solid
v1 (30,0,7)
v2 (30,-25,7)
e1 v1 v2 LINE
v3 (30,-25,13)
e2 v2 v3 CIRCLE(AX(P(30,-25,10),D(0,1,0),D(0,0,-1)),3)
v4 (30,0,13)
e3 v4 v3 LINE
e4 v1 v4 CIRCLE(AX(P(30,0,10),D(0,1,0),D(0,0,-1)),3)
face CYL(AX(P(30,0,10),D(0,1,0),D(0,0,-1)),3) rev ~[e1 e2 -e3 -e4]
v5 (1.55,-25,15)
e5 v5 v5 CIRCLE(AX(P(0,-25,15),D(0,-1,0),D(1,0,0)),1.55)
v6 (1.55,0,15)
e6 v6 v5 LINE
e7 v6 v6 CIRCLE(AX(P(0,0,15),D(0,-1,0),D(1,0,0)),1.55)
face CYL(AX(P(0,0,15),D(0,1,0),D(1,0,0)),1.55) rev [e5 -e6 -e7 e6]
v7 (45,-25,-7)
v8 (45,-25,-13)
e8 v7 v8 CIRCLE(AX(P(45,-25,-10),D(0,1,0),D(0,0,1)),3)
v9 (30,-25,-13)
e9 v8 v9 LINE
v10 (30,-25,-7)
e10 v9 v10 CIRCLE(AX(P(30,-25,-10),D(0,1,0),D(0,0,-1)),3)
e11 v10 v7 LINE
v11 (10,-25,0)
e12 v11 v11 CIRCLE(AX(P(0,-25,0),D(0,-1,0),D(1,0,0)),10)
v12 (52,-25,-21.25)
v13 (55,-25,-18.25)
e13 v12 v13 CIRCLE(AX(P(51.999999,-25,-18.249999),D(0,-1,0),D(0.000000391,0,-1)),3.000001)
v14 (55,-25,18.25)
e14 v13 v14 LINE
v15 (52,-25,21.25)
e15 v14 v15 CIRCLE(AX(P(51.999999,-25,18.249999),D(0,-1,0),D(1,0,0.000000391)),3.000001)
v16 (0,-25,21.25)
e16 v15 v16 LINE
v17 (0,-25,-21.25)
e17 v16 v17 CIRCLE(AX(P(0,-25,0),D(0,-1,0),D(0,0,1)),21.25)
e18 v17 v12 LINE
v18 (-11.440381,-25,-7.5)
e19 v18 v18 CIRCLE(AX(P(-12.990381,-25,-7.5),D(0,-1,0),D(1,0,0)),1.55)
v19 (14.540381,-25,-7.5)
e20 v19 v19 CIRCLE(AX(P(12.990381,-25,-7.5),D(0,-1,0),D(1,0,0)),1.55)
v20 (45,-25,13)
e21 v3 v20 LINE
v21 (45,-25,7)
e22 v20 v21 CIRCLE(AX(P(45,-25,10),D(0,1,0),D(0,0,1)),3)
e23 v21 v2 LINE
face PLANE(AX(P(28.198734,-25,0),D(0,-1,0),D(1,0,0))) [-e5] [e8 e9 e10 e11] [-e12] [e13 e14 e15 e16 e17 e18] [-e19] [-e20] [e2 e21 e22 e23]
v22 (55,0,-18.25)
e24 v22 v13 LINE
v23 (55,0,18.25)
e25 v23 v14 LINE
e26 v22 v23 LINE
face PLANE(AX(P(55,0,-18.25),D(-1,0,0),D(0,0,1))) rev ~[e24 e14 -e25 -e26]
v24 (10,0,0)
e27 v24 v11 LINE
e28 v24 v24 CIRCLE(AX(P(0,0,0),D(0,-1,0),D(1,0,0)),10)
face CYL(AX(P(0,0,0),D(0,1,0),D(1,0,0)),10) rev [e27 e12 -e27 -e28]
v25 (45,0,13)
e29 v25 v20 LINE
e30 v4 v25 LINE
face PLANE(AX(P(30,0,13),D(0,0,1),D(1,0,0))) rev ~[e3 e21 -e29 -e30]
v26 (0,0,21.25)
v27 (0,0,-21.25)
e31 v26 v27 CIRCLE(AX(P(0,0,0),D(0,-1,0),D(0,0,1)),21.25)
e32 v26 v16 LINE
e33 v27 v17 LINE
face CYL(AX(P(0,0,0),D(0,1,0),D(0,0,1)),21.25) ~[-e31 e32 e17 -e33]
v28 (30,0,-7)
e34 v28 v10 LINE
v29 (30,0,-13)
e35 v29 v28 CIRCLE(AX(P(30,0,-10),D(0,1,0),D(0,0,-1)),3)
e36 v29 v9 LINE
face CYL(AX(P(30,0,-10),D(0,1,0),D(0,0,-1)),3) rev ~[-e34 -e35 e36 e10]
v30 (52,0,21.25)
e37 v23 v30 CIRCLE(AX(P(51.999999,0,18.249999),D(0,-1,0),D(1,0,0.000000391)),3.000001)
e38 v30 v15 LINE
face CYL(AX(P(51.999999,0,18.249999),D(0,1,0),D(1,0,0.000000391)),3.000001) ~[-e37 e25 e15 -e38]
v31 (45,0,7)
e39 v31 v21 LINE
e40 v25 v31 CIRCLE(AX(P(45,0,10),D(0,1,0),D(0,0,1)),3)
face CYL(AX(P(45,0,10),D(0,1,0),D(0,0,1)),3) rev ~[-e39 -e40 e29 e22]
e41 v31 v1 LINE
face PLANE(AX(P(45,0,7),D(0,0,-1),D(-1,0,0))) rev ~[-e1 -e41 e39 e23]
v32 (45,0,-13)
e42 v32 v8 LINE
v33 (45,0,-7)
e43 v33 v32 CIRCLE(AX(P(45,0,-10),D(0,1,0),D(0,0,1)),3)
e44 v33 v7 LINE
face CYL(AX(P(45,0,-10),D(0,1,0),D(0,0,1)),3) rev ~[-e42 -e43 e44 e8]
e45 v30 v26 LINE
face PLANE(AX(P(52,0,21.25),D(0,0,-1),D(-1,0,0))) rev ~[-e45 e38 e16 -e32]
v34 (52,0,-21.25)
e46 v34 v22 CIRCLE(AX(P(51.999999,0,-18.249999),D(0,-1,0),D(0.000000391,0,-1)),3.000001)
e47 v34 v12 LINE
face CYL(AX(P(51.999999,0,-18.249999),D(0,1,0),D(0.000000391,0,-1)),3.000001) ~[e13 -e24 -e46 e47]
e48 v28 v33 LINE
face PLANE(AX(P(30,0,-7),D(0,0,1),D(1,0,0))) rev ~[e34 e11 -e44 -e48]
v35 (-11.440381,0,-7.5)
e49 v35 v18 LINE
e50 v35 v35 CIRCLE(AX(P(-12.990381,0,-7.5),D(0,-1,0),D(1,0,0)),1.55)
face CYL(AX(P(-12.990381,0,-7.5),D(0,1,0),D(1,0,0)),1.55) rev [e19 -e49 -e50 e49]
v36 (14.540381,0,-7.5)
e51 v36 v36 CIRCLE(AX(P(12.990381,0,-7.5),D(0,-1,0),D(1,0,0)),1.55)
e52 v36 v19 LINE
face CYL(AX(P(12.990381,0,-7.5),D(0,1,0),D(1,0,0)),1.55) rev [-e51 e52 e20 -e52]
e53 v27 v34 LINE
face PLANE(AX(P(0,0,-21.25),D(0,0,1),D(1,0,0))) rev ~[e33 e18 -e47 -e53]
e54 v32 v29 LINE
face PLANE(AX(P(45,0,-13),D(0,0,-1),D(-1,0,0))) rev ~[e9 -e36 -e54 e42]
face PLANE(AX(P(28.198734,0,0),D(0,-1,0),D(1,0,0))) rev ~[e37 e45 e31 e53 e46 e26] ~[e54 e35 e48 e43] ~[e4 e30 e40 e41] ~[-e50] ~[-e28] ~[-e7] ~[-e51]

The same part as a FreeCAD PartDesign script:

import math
import FreeCAD as App
import Part
import Sketcher
from FreeCAD import Vector

doc = App.newDocument("Part")
params = doc.addObject("Spreadsheet::Sheet", "Params")
for row, (alias, value) in enumerate([
    ("sketch1_diameter", "20 mm"),
    ("sketch1_radius", "3.000001 mm"),
    ("sketch1_diameter2", "3.1 mm"),
    ("sketch1_width", "52 mm"),
    ("sketch1_width2", "15 mm"),
    ("pad1_length", "25 mm"),
], start=1):
    params.set(f"A{row}", alias)
    params.set(f"B{row}", "=" + value)
    params.setAlias(f"B{row}", alias)

body = doc.addObject("PartDesign::Body", "Body")

# Sketch on XZ plane
sketch1 = body.newObject("Sketcher::SketchObject", "Sketch")
sketch1.AttachmentSupport = (doc.getObject("XZ_Plane"), [""])
sketch1.MapMode = "FlatFace"
sketch1.addGeometry(Part.LineSegment(Vector(52, 21.2, 0), Vector(0, 21.2, 0)), False)
sketch1.addGeometry(Part.ArcOfCircle(Part.Circle(Vector(0, 0, 0), Vector(0, 0, 1), 21.2), math.radians(90), math.radians(270)), False)
sketch1.addGeometry(Part.LineSegment(Vector(0, -21.2, 0), Vector(52, -21.2, 0)), False)
sketch1.addGeometry(Part.ArcOfCircle(Part.Circle(Vector(52, -18.2, 0), Vector(0, 0, 1), 3), math.radians(-90), math.radians(0)), False)
sketch1.addGeometry(Part.LineSegment(Vector(55, -18.2, 0), Vector(55, 18.2, 0)), False)
sketch1.addGeometry(Part.ArcOfCircle(Part.Circle(Vector(52, 18.2, 0), Vector(0, 0, 1), 3), math.radians(0), math.radians(90)), False)
sketch1.addGeometry(Part.Circle(Vector(-13, -7.5, 0), Vector(0, 0, 1), 1.6), False)
sketch1.addGeometry(Part.Circle(Vector(13, -7.5, 0), Vector(0, 0, 1), 1.6), False)
sketch1.addGeometry(Part.Circle(Vector(0, 0, 0), Vector(0, 0, 1), 10), False)
sketch1.addGeometry(Part.ArcOfCircle(Part.Circle(Vector(45, -10, 0), Vector(0, 0, 1), 3), math.radians(-90), math.radians(90)), False)
sketch1.addGeometry(Part.LineSegment(Vector(45, -13, 0), Vector(30, -13, 0)), False)
sketch1.addGeometry(Part.ArcOfCircle(Part.Circle(Vector(30, -10, 0), Vector(0, 0, 1), 3), math.radians(90), math.radians(270)), False)
sketch1.addGeometry(Part.LineSegment(Vector(30, -7, 0), Vector(45, -7, 0)), False)
sketch1.addGeometry(Part.Circle(Vector(0, 15, 0), Vector(0, 0, 1), 1.6), False)
sketch1.addGeometry(Part.ArcOfCircle(Part.Circle(Vector(45, 10, 0), Vector(0, 0, 1), 3), math.radians(-90), math.radians(90)), False)
sketch1.addGeometry(Part.LineSegment(Vector(45, 7, 0), Vector(30, 7, 0)), False)
sketch1.addGeometry(Part.ArcOfCircle(Part.Circle(Vector(30, 10, 0), Vector(0, 0, 1), 3), math.radians(90), math.radians(270)), False)
sketch1.addGeometry(Part.LineSegment(Vector(30, 13, 0), Vector(45, 13, 0)), False)
sketch1.addConstraint(Sketcher.Constraint("Tangent", 0, 2, 1, 1))
sketch1.addConstraint(Sketcher.Constraint("Tangent", 1, 2, 2, 1))
sketch1.addConstraint(Sketcher.Constraint("Tangent", 2, 2, 3, 1))
sketch1.addConstraint(Sketcher.Constraint("Tangent", 3, 2, 4, 1))
sketch1.addConstraint(Sketcher.Constraint("Tangent", 4, 2, 5, 1))
sketch1.addConstraint(Sketcher.Constraint("Tangent", 5, 2, 0, 1))
sketch1.addConstraint(Sketcher.Constraint("Tangent", 9, 1, 10, 1))
sketch1.addConstraint(Sketcher.Constraint("Tangent", 10, 2, 11, 2))
sketch1.addConstraint(Sketcher.Constraint("Tangent", 11, 1, 12, 1))
sketch1.addConstraint(Sketcher.Constraint("Tangent", 12, 2, 9, 2))
sketch1.addConstraint(Sketcher.Constraint("Tangent", 14, 1, 15, 1))
sketch1.addConstraint(Sketcher.Constraint("Tangent", 15, 2, 16, 2))
sketch1.addConstraint(Sketcher.Constraint("Tangent", 16, 1, 17, 1))
sketch1.addConstraint(Sketcher.Constraint("Tangent", 17, 2, 14, 2))
sketch1.addConstraint(Sketcher.Constraint("Horizontal", 0))
sketch1.addConstraint(Sketcher.Constraint("Horizontal", 2))
sketch1.addConstraint(Sketcher.Constraint("Vertical", 4))
sketch1.addConstraint(Sketcher.Constraint("Horizontal", 10))
sketch1.addConstraint(Sketcher.Constraint("Horizontal", 12))
sketch1.addConstraint(Sketcher.Constraint("Horizontal", 15))
sketch1.addConstraint(Sketcher.Constraint("Horizontal", 17))
sketch1.addConstraint(Sketcher.Constraint("Coincident", 1, 3, -1, 1))
sketch1.addConstraint(Sketcher.Constraint("Coincident", 8, 3, -1, 1))
sketch1.addConstraint(Sketcher.Constraint("Equal", 3, 5))
sketch1.addConstraint(Sketcher.Constraint("Equal", 6, 7))
sketch1.addConstraint(Sketcher.Constraint("Equal", 5, 9))
sketch1.addConstraint(Sketcher.Constraint("Equal", 7, 13))
sketch1.addConstraint(Sketcher.Constraint("Equal", 11, 14))
sketch1.addConstraint(Sketcher.Constraint("Symmetric", 6, 3, 7, 3, -2))
sketch1.addConstraint(Sketcher.Constraint("Symmetric", 9, 3, 14, 3, -1))
sketch1.addConstraint(Sketcher.Constraint("PointOnObject", 13, 3, -2))
sketch1.addConstraint(Sketcher.Constraint("Vertical", 11, 3, 16, 3))
sketch1.addConstraint(Sketcher.Constraint("Diameter", 8, 20.0))
sketch1.addConstraint(Sketcher.Constraint("Radius", 3, 3.000001))
sketch1.addConstraint(Sketcher.Constraint("Diameter", 6, 3.1))
sketch1.addConstraint(Sketcher.Constraint("DistanceX", 0, 2, 0, 1, 52.0))
sketch1.addConstraint(Sketcher.Constraint("DistanceX", 10, 2, 10, 1, 15.0))
sketch1.addConstraint(Sketcher.Constraint("Radius", 1, 21.25))
sketch1.addConstraint(Sketcher.Constraint("DistanceX", -1, 1, 9, 3, 45.0))
sketch1.addConstraint(Sketcher.Constraint("DistanceY", 9, 3, -1, 1, 10.0))
sketch1.addConstraint(Sketcher.Constraint("DistanceY", -1, 1, 13, 3, 15.0))
sketch1.addConstraint(Sketcher.Constraint("DistanceY", 6, 3, -1, 1, 7.5))
sketch1.addConstraint(Sketcher.Constraint("DistanceX", 6, 3, -1, 1, 12.990381))
sketch1.setExpression("Constraints[32]", "Params.sketch1_diameter")
sketch1.setExpression("Constraints[33]", "Params.sketch1_radius")
sketch1.setExpression("Constraints[34]", "Params.sketch1_diameter2")
sketch1.setExpression("Constraints[35]", "Params.sketch1_width")
sketch1.setExpression("Constraints[36]", "Params.sketch1_width2")
pad1 = body.newObject("PartDesign::Pad", "Pad")
pad1.Profile = sketch1
pad1.setExpression("Length", "Params.pad1_length")

doc.recompute()
